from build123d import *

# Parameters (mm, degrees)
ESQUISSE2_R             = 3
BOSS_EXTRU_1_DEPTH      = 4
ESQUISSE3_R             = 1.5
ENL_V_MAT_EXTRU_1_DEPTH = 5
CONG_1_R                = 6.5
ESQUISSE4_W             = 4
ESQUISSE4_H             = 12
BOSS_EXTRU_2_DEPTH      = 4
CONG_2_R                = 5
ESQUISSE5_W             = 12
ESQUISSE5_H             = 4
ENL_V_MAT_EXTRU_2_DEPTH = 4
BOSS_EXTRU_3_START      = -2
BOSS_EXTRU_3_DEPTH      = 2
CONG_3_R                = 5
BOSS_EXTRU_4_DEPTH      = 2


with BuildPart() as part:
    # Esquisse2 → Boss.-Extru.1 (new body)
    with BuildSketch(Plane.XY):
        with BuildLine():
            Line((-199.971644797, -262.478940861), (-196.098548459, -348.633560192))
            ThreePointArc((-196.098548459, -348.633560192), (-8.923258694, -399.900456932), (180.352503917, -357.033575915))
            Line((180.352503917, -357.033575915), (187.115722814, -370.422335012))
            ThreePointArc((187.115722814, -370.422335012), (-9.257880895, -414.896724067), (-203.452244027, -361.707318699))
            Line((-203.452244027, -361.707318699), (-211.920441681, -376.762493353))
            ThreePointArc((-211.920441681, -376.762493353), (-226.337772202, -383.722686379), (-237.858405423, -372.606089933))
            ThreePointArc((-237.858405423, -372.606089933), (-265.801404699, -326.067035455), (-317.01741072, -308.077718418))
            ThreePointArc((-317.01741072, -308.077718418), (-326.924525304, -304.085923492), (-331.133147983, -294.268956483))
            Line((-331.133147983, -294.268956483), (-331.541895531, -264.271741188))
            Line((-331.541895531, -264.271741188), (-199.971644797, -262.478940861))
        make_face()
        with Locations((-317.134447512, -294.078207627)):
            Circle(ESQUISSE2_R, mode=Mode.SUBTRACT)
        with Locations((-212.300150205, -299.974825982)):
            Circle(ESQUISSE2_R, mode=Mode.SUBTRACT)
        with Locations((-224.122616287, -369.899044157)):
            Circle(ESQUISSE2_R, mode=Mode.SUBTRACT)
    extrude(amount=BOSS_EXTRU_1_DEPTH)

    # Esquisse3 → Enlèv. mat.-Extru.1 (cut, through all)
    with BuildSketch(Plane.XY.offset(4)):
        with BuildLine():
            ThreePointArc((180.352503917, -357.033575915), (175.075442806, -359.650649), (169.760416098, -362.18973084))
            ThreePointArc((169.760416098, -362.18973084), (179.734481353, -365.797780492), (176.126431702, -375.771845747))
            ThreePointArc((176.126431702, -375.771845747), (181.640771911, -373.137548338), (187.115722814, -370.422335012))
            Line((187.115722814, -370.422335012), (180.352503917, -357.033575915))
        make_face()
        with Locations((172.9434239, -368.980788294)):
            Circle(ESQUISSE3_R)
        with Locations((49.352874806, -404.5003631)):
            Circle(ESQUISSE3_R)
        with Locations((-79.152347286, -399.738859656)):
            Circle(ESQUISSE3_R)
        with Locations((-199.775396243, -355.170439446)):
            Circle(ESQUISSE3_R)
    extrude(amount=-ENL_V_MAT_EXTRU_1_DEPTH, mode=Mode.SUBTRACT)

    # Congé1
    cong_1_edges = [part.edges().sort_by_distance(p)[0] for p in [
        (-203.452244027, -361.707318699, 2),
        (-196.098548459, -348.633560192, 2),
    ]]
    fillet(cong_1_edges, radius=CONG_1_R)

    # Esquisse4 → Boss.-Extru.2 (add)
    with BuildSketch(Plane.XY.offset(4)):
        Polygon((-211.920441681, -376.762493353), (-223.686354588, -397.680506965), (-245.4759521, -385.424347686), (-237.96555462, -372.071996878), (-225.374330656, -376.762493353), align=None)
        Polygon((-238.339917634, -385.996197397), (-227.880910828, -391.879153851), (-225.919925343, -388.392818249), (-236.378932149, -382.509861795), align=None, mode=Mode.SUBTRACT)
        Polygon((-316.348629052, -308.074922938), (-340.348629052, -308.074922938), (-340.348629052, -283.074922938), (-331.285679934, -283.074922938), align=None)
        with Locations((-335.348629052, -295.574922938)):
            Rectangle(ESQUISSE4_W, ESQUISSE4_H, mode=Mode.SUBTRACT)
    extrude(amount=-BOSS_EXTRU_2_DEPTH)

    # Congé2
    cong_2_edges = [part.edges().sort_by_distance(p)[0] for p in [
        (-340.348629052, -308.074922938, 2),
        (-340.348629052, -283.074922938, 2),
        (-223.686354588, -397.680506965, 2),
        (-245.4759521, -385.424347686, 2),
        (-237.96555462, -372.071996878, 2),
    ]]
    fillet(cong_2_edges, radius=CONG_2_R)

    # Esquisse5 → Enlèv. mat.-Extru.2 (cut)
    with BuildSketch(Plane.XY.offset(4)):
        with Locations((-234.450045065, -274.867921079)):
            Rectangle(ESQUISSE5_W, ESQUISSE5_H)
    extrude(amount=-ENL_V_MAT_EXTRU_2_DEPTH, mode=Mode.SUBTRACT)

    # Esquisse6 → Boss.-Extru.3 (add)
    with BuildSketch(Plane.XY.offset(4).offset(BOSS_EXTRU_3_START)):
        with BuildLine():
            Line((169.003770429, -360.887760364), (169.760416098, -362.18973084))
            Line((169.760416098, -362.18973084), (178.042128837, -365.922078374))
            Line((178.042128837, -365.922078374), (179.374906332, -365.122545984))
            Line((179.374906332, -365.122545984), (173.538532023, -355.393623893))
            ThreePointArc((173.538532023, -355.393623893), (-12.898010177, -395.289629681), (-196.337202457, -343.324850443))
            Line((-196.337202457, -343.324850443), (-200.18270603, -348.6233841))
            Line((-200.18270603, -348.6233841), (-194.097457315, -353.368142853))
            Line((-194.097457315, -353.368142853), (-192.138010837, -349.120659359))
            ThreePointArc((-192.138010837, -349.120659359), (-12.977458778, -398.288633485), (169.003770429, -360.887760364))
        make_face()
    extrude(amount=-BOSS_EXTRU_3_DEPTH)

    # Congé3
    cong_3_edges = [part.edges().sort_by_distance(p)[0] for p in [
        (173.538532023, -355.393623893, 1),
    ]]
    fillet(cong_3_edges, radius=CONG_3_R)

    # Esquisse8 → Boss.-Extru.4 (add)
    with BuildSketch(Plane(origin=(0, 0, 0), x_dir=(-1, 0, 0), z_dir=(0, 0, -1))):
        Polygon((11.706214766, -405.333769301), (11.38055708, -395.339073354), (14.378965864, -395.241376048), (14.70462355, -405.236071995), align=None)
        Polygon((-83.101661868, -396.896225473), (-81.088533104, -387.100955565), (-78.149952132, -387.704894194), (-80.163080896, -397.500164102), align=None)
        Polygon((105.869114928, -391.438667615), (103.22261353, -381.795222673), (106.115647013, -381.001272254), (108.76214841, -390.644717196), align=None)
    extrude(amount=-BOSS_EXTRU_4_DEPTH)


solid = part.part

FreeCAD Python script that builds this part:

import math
import FreeCAD as App
import Part
import Sketcher
Q = App.Units.Quantity


def edges_at(feature, points):
    """Names of the edges that pass closest to the given points."""
    edges = feature.Shape.Edges
    near = lambda p: min(range(len(edges)), key=lambda i: edges[i].distToShape(Part.Vertex(*p))[0])
    return sorted({f"Edge{near(p) + 1}" for p in points})


def add_polygon(sketch, points):
    """Adds a closed chain of lines whose ends are joined by coincident constraints."""
    first, n = sketch.GeometryCount, len(points)
    for a, b in zip(points, points[1:] + points[:1]):
        sketch.addGeometry(Part.LineSegment(App.Vector(*a, 0), App.Vector(*b, 0)), False)
    for i in range(n):
        sketch.addConstraint(Sketcher.Constraint("Coincident", first + i, 2, first + (i + 1) % n, 1))

doc = App.newDocument("Part")
params = doc.addObject("Spreadsheet::Sheet", "Params")
for row, (alias, value) in enumerate([
    ("sketch1_diameter", "6 mm"),
    ("sketch1_radius", "14 mm"),
    ("sketch1_radius2", "80 mm"),
    ("sketch1_radius3", "415 mm"),
    ("sketch1_radius4", "400 mm"),
    ("pad1_length", "4 mm"),
    ("sketch2_diameter", "3 mm"),
    ("sketch2_radius", "399.999999 mm"),
    ("sketch2_radius2", "414.999999 mm"),
    ("fillet_radius", "6.5 mm"),
    ("sketch3_width", "24 mm"),
    ("sketch3_width2", "4 mm"),
    ("sketch3_height", "25 mm"),
    ("sketch3_height2", "12 mm"),
    ("sketch3_length", "24 mm"),
    ("pad2_length", "4 mm"),
    ("fillet2_radius", "5 mm"),
    ("sketch4_width", "12 mm"),
    ("sketch4_height", "4 mm"),
    ("pocket2_length", "4 mm"),
    ("sketch5_radius", "395.5 mm"),
    ("sketch5_radius2", "398.5 mm"),
    ("pad3_length", "2 mm"),
    ("fillet3_radius", "5 mm"),
    ("sketch6_length", "10 mm"),
    ("sketch6_length2", "3 mm"),
    ("pad4_length", "2 mm"),
], start=1):
    params.set(f"A{row}", alias)
    params.set(f"B{row}", "=" + value)
    params.setAlias(f"B{row}", alias)

body = doc.addObject("PartDesign::Body", "Body")

# Sketch on XY plane
sketch1 = body.newObject("Sketcher::SketchObject", "Sketch")
sketch1.AttachmentSupport = (doc.getObject("XY_Plane"), [""])
sketch1.MapMode = "FlatFace"
sketch1.addGeometry([
    Part.LineSegment(App.Vector(-196.1, -348.6, 0), App.Vector(-200, -262.5, 0)),  # 0
    Part.LineSegment(App.Vector(-200, -262.5, 0), App.Vector(-331.5, -264.3, 0)),  # 1
    Part.LineSegment(App.Vector(-331.5, -264.3, 0), App.Vector(-331.1, -294.3, 0)),  # 2
    Part.ArcOfCircle(Part.Circle(App.Vector(-317.1, -294.1, 0), App.Vector(0, 0, 1), 14), math.radians(-179), math.radians(-90)),  # 3
    Part.ArcOfCircle(Part.Circle(App.Vector(-316.3, -388.1, 0), App.Vector(0, 0, 1), 80), math.radians(11), math.radians(90)),  # 4
    Part.ArcOfCircle(Part.Circle(App.Vector(-224.1, -369.9, 0), App.Vector(0, 0, 1), 14), math.radians(-169), math.radians(-29)),  # 5
    Part.LineSegment(App.Vector(-211.9, -376.8, 0), App.Vector(-203.5, -361.7, 0)),  # 6
    Part.ArcOfCircle(Part.Circle(App.Vector(0, 0, 0), App.Vector(0, 0, 1), 415), math.radians(-119), math.radians(-63)),  # 7
    Part.LineSegment(App.Vector(187.1, -370.4, 0), App.Vector(180.4, -357, 0)),  # 8
    Part.ArcOfCircle(Part.Circle(App.Vector(0, 0, 0), App.Vector(0, 0, 1), 400), math.radians(-119), math.radians(-63)),  # 9
    Part.Circle(App.Vector(-224.1, -369.9, 0), App.Vector(0, 0, 1), 3),  # 10
    Part.Circle(App.Vector(-212.3, -300, 0), App.Vector(0, 0, 1), 3),  # 11
    Part.Circle(App.Vector(-317.1, -294.1, 0), App.Vector(0, 0, 1), 3),  # 12
], False)
sketch1.addConstraint([
    Sketcher.Constraint("Coincident", 0, 2, 1, 1),
    Sketcher.Constraint("Coincident", 1, 2, 2, 1),
    Sketcher.Constraint("Tangent", 2, 2, 3, 1),
    Sketcher.Constraint("Tangent", 3, 2, 4, 2),
    Sketcher.Constraint("Tangent", 4, 1, 5, 1),
    Sketcher.Constraint("Tangent", 5, 2, 6, 1),
    Sketcher.Constraint("Coincident", 6, 2, 7, 1),
    Sketcher.Constraint("Coincident", 7, 2, 8, 1),
    Sketcher.Constraint("Coincident", 8, 2, 9, 2),
    Sketcher.Constraint("Coincident", 9, 1, 0, 1),
    Sketcher.Constraint("Coincident", 7, 3, -1, 1),
    Sketcher.Constraint("Coincident", 9, 3, -1, 1),
    Sketcher.Constraint("Coincident", 10, 3, 5, 3),
    Sketcher.Constraint("Coincident", 12, 3, 3, 3),
    Sketcher.Constraint("Equal", 3, 5),
    Sketcher.Constraint("Equal", 10, 11),
    Sketcher.Constraint("Equal", 11, 12),
    Sketcher.Constraint("Perpendicular", 1, 2),
    Sketcher.Constraint("Diameter", 10, Q("6 mm")),
    Sketcher.Constraint("Radius", 3, Q("14 mm")),
    Sketcher.Constraint("Radius", 4, Q("80 mm")),
    Sketcher.Constraint("Radius", 7, Q("415 mm")),
    Sketcher.Constraint("Radius", 9, Q("400 mm")),
    Sketcher.Constraint("Distance", 2, Q("30 mm")),
    Sketcher.Constraint("DistanceY", 1, 2, 0, 2, Q("1.7928 mm")),
    Sketcher.Constraint("Distance", 6, Q("17.273351 mm")),
    Sketcher.Constraint("DistanceX", 4, 3, -1, 1, Q("316.348629 mm")),
    Sketcher.Constraint("DistanceX", 11, 3, -1, 1, Q("212.30015 mm")),
    Sketcher.Constraint("DistanceY", 0, 2, -1, 1, Q("262.478941 mm")),
    Sketcher.Constraint("DistanceX", 3, 2, -1, 1, Q("317.017411 mm")),
    Sketcher.Constraint("DistanceY", 4, 1, -1, 1, Q("372.60609 mm")),
    Sketcher.Constraint("DistanceX", 9, 1, -1, 1, Q("196.098548 mm")),
    Sketcher.Constraint("DistanceY", 10, 3, 11, 3, Q("69.924218 mm")),
    Sketcher.Constraint("DistanceX", 10, 3, 0, 2, Q("24.150971 mm")),
    Sketcher.Constraint("DistanceY", 5, 2, 7, 2, Q("6.340158 mm")),
    Sketcher.Constraint("DistanceX", 8, 2, 7, 2, Q("6.763219 mm")),
])
sketch1.setExpression("Constraints[18]", "Params.sketch1_diameter")
sketch1.setExpression("Constraints[19]", "Params.sketch1_radius")
sketch1.setExpression("Constraints[20]", "Params.sketch1_radius2")
sketch1.setExpression("Constraints[21]", "Params.sketch1_radius3")
sketch1.setExpression("Constraints[22]", "Params.sketch1_radius4")
pad1 = body.newObject("PartDesign::Pad", "Pad")
pad1.Profile = sketch1
pad1.setExpression("Length", "Params.pad1_length")

# Sketch on XY plane
sketch2 = body.newObject("Sketcher::SketchObject", "Sketch001")
sketch2.AttachmentSupport = (doc.getObject("XY_Plane"), [""])
sketch2.MapMode = "FlatFace"
sketch2.AttachmentOffset = App.Placement(App.Vector(0, 0, 4), App.Rotation())
sketch2.addGeometry([
    Part.ArcOfCircle(Part.Circle(App.Vector(0, 0, 0), App.Vector(0, 0, 1), 400), math.radians(-64.89), math.radians(-63.2)),  # 0
    Part.ArcOfCircle(Part.Circle(App.Vector(172.9, -369, 0), App.Vector(0, 0, 1), 7.5), math.radians(-65), math.radians(115)),  # 1
    Part.ArcOfCircle(Part.Circle(App.Vector(0, 0, 0), App.Vector(0, 0, 1), 415), math.radians(-64.89), math.radians(-63.2)),  # 2
    Part.LineSegment(App.Vector(187.1, -370.4, 0), App.Vector(180.4, -357, 0)),  # 3
    Part.Circle(App.Vector(172.9, -369, 0), App.Vector(0, 0, 1), 1.5),  # 4
    Part.Circle(App.Vector(49.4, -404.5, 0), App.Vector(0, 0, 1), 1.5),  # 5
    Part.Circle(App.Vector(-79.2, -399.7, 0), App.Vector(0, 0, 1), 1.5),  # 6
    Part.Circle(App.Vector(-199.8, -355.2, 0), App.Vector(0, 0, 1), 1.5),  # 7
], False)
sketch2.addConstraint([
    Sketcher.Constraint("Tangent", 0, 1, 1, 2),
    Sketcher.Constraint("Tangent", 1, 1, 2, 1),
    Sketcher.Constraint("Coincident", 2, 2, 3, 1),
    Sketcher.Constraint("Coincident", 3, 2, 0, 2),
    Sketcher.Constraint("Coincident", 0, 3, -1, 1),
    Sketcher.Constraint("Coincident", 2, 3, -1, 1),
    Sketcher.Constraint("Coincident", 4, 3, 1, 3),
    Sketcher.Constraint("Equal", 4, 5),
    Sketcher.Constraint("Equal", 5, 6),
    Sketcher.Constraint("Equal", 6, 7),
    Sketcher.Constraint("Diameter", 4, Q("3 mm")),
    Sketcher.Constraint("Radius", 0, Q("399.999999 mm")),
    Sketcher.Constraint("Radius", 2, Q("414.999999 mm")),
    Sketcher.Constraint("DistanceX", 4, 3, 2, 2, Q("14.172299 mm")),
    Sketcher.Constraint("DistanceY", 1, 3, -1, 1, Q("368.980788 mm")),
    Sketcher.Constraint("DistanceY", 6, 3, -1, 1, Q("399.73886 mm")),
    Sketcher.Constraint("DistanceY", 7, 3, -1, 1, Q("355.170439 mm")),
    Sketcher.Constraint("DistanceX", 5, 3, 1, 3, Q("123.590549 mm")),
    Sketcher.Constraint("DistanceX", 6, 3, 1, 3, Q("252.095771 mm")),
    Sketcher.Constraint("DistanceX", 7, 3, 6, 3, Q("120.623049 mm")),
    Sketcher.Constraint("DistanceY", 5, 3, 2, 2, Q("34.078028 mm")),
    Sketcher.Constraint("DistanceX", 4, 3, 3, 2, Q("7.40908 mm")),
])
sketch2.setExpression("Constraints[10]", "Params.sketch2_diameter")
sketch2.setExpression("Constraints[11]", "Params.sketch2_radius")
sketch2.setExpression("Constraints[12]", "Params.sketch2_radius2")
pocket1 = body.newObject("PartDesign::Pocket", "Pocket")
pocket1.Profile = sketch2
pocket1.Type = "ThroughAll"
doc.recompute()

fillet = body.newObject("PartDesign::Fillet", "Fillet")
fillet.Base = (pocket1, edges_at(pocket1, [(-203.452, -361.707, 2), (-196.099, -348.634, 2)]))
fillet.setExpression("Radius", "Params.fillet_radius")

# Sketch on XY plane
sketch3 = body.newObject("Sketcher::SketchObject", "Sketch002")
sketch3.AttachmentSupport = (doc.getObject("XY_Plane"), [""])
sketch3.MapMode = "FlatFace"
sketch3.AttachmentOffset = App.Placement(App.Vector(0, 0, 4), App.Rotation())
add_polygon(sketch3, [(-223.7, -397.7), (-211.9, -376.8), (-225.4, -376.8), (-238, -372.1), (-245.5, -385.4)])  # lines 0-4
add_polygon(sketch3, [(-238.3, -386), (-236.4, -382.5), (-225.9, -388.4), (-227.9, -391.9)])  # lines 5-8
add_polygon(sketch3, [(-340.3, -308.1), (-316.3, -308.1), (-331.3, -283.1), (-340.3, -283.1)])  # lines 9-12
add_polygon(sketch3, [(-337.3, -301.6), (-337.3, -289.6), (-333.3, -289.6), (-333.3, -301.6)])  # lines 13-16
sketch3.addConstraint([
    Sketcher.Constraint("Horizontal", 1),
    Sketcher.Constraint("Horizontal", 9),
    Sketcher.Constraint("Horizontal", 11),
    Sketcher.Constraint("Vertical", 12),
    Sketcher.Constraint("Vertical", 13),
    Sketcher.Constraint("Horizontal", 14),
    Sketcher.Constraint("Vertical", 15),
    Sketcher.Constraint("Horizontal", 16),
    Sketcher.Constraint("Parallel", 0, 3),
    Sketcher.Constraint("Perpendicular", 3, 4),
    Sketcher.Constraint("Perpendicular", 4, 5),
    Sketcher.Constraint("Perpendicular", 5, 6),
    Sketcher.Constraint("Perpendicular", 6, 7),
    Sketcher.Constraint("Perpendicular", 7, 8),
    Sketcher.Constraint("DistanceX", 9, 1, 9, 2, Q("24 mm")),
    Sketcher.Constraint("DistanceX", 14, 1, 14, 2, Q("4 mm")),
    Sketcher.Constraint("DistanceY", 12, 2, 12, 1, Q("25 mm")),
    Sketcher.Constraint("DistanceY", 13, 1, 13, 2, Q("12 mm")),
    Sketcher.Constraint("Distance", 0, Q("24 mm")),
    Sketcher.Constraint("Distance", 4, Q("25 mm")),
    Sketcher.Constraint("Distance", 5, Q("4 mm")),
    Sketcher.Constraint("Distance", 6, Q("12 mm")),
    Sketcher.Constraint("DistanceX", 11, 2, 13, 2, Q("3 mm")),
    Sketcher.Constraint("DistanceY", 13, 2, 11, 2, Q("6.5 mm")),
    Sketcher.Constraint("DistanceX", 1, 2, 1, 1, Q("13.453889 mm")),
    Sketcher.Constraint("DistanceX", 11, 2, 11, 1, Q("9.062949 mm")),
    Sketcher.Constraint("DistanceX", 2, 2, 4, 2, Q("14.2792 mm")),
    Sketcher.Constraint("DistanceX", 5, 2, 1, 2, Q("11.004601 mm")),
    Sketcher.Constraint("DistanceY", 8, 2, 2, 2, Q("13.924201 mm")),
    Sketcher.Constraint("DistanceX", 9, 2, 1, 2, Q("90.974298 mm")),
    Sketcher.Constraint("Distance", 3, Q("15.319639 mm")),
    Sketcher.Constraint("DistanceX", 0, 2, -1, 1, Q("211.920442 mm")),
    Sketcher.Constraint("DistanceY", 5, 2, -1, 1, Q("382.509862 mm")),
    Sketcher.Constraint("DistanceY", 5, 2, 9, 2, Q("74.434939 mm")),
])
sketch3.setExpression("Constraints[31]", "Params.sketch3_width")
sketch3.setExpression("Constraints[32]", "Params.sketch3_width2")
sketch3.setExpression("Constraints[33]", "Params.sketch3_height")
sketch3.setExpression("Constraints[34]", "Params.sketch3_height2")
sketch3.setExpression("Constraints[35]", "Params.sketch3_length")
pad2 = body.newObject("PartDesign::Pad", "Pad001")
pad2.Profile = sketch3
pad2.setExpression("Length", "Params.pad2_length")
pad2.Reversed = True
doc.recompute()

fillet2 = body.newObject("PartDesign::Fillet", "Fillet001")
fillet2.Base = (pad2, edges_at(pad2, [
    (-340.349, -308.075, 2),
    (-340.349, -283.075, 2),
    (-223.686, -397.681, 2),
    (-245.476, -385.424, 2),
    (-237.966, -372.072, 2),
]))
fillet2.setExpression("Radius", "Params.fillet2_radius")

# Sketch on XY plane
sketch4 = body.newObject("Sketcher::SketchObject", "Sketch003")
sketch4.AttachmentSupport = (doc.getObject("XY_Plane"), [""])
sketch4.MapMode = "FlatFace"
sketch4.AttachmentOffset = App.Placement(App.Vector(0, 0, 4), App.Rotation())
add_polygon(sketch4, [(-240.5, -272.9), (-240.5, -276.9), (-228.5, -276.9), (-228.5, -272.9)])  # lines 0-3
sketch4.addConstraint([
    Sketcher.Constraint("Vertical", 0),
    Sketcher.Constraint("Horizontal", 1),
    Sketcher.Constraint("Vertical", 2),
    Sketcher.Constraint("Horizontal", 3),
    Sketcher.Constraint("DistanceX", 1, 1, 1, 2, Q("12 mm")),
    Sketcher.Constraint("DistanceY", 0, 2, 0, 1, Q("4 mm")),
    Sketcher.Constraint("DistanceY", 0, 2, -1, 1, Q("276.867921 mm")),
    Sketcher.Constraint("DistanceX", 0, 2, -1, 1, Q("240.450045 mm")),
])
sketch4.setExpression("Constraints[8]", "Params.sketch4_width")
sketch4.setExpression("Constraints[9]", "Params.sketch4_height")
pocket2 = body.newObject("PartDesign::Pocket", "Pocket001")
pocket2.Profile = sketch4
pocket2.setExpression("Length", "Params.pocket2_length")

# Sketch on XY plane
sketch5 = body.newObject("Sketcher::SketchObject", "Sketch004")
sketch5.AttachmentSupport = (doc.getObject("XY_Plane"), [""])
sketch5.MapMode = "FlatFace"
sketch5.AttachmentOffset = App.Placement(App.Vector(0, 0, 2), App.Rotation())
sketch5.addGeometry([
    Part.LineSegment(App.Vector(169, -360.9, 0), App.Vector(169.8, -362.2, 0)),  # 0
    Part.LineSegment(App.Vector(169.8, -362.2, 0), App.Vector(178, -365.9, 0)),  # 1
    Part.LineSegment(App.Vector(178, -365.9, 0), App.Vector(179.4, -365.1, 0)),  # 2
    Part.LineSegment(App.Vector(179.4, -365.1, 0), App.Vector(173.5, -355.4, 0)),  # 3
    Part.ArcOfCircle(Part.Circle(App.Vector(0, 0, 0), App.Vector(0, 0, 1), 395.5), math.radians(-120), math.radians(-64)),  # 4
    Part.LineSegment(App.Vector(-196.3, -343.3, 0), App.Vector(-200.2, -348.6, 0)),  # 5
    Part.LineSegment(App.Vector(-200.2, -348.6, 0), App.Vector(-194.1, -353.4, 0)),  # 6
    Part.LineSegment(App.Vector(-194.1, -353.4, 0), App.Vector(-192.1, -349.1, 0)),  # 7
    Part.ArcOfCircle(Part.Circle(App.Vector(0, 0, 0), App.Vector(0, 0, 1), 398.5), math.radians(-119), math.radians(-65)),  # 8
], False)
sketch5.addConstraint([
    Sketcher.Constraint("Coincident", 0, 2, 1, 1),
    Sketcher.Constraint("Coincident", 1, 2, 2, 1),
    Sketcher.Constraint("Coincident", 2, 2, 3, 1),
    Sketcher.Constraint("Coincident", 3, 2, 4, 2),
    Sketcher.Constraint("Coincident", 4, 1, 5, 1),
    Sketcher.Constraint("Coincident", 5, 2, 6, 1),
    Sketcher.Constraint("Coincident", 6, 2, 7, 1),
    Sketcher.Constraint("Coincident", 7, 2, 8, 1),
    Sketcher.Constraint("Coincident", 8, 2, 0, 1),
    Sketcher.Constraint("Coincident", 4, 3, -1, 1),
    Sketcher.Constraint("Coincident", 8, 3, -1, 1),
    Sketcher.Constraint("Perpendicular", 2, 3),
    Sketcher.Constraint("Radius", 4, Q("395.5 mm")),
    Sketcher.Constraint("Radius", 8, Q("398.5 mm")),
    Sketcher.Constraint("DistanceY", 8, 2, 7, 2, Q("11.767101 mm")),
    Sketcher.Constraint("Distance", 0, Q("1.505868 mm")),
    Sketcher.Constraint("Distance", 3, Q("11.345272 mm")),
    Sketcher.Constraint("Distance", 6, Q("7.71641 mm")),
    Sketcher.Constraint("DistanceY", 0, 2, -1, 1, Q("362.189731 mm")),
    Sketcher.Constraint("DistanceX", -1, 1, 1, 2, Q("178.042129 mm")),
    Sketcher.Constraint("DistanceY", 1, 2, -1, 1, Q("365.922078 mm")),
    Sketcher.Constraint("DistanceY", 4, 1, -1, 1, Q("343.32485 mm")),
    Sketcher.Constraint("DistanceX", 7, 2, -1, 1, Q("192.138011 mm")),
    Sketcher.Constraint("DistanceX", 0, 2, 2, 2, Q("9.61449 mm")),
    Sketcher.Constraint("DistanceX", 5, 2, 3, 2, Q("373.721238 mm")),
    Sketcher.Constraint("DistanceY", 3, 2, 5, 2, Q("6.77024 mm")),
    Sketcher.Constraint("DistanceX", 5, 2, 6, 2, Q("6.085249 mm")),
])
sketch5.setExpression("Constraints[12]", "Params.sketch5_radius")
sketch5.setExpression("Constraints[13]", "Params.sketch5_radius2")
pad3 = body.newObject("PartDesign::Pad", "Pad002")
pad3.Profile = sketch5
pad3.setExpression("Length", "Params.pad3_length")
pad3.Reversed = True
doc.recompute()

fillet3 = body.newObject("PartDesign::Fillet", "Fillet002")
fillet3.Base = (pad3, edges_at(pad3, [(173.539, -355.394, 1)]))
fillet3.setExpression("Radius", "Params.fillet3_radius")

# Sketch on XY plane
sketch6 = body.newObject("Sketcher::SketchObject", "Sketch005")
sketch6.AttachmentSupport = (doc.getObject("XY_Plane"), [""])
sketch6.MapMode = "FlatFace"
add_polygon(sketch6, [(-11.4, -395.3), (-11.7, -405.3), (-14.7, -405.2), (-14.4, -395.2)])  # lines 0-3
add_polygon(sketch6, [(81.1, -387.1), (83.1, -396.9), (80.2, -397.5), (78.1, -387.7)])  # lines 4-7
add_polygon(sketch6, [(-103.2, -381.8), (-105.9, -391.4), (-108.8, -390.6), (-106.1, -381)])  # lines 8-11
sketch6.addConstraint([
    Sketcher.Constraint("Perpendicular", 0, 1),
    Sketcher.Constraint("Perpendicular", 1, 2),
    Sketcher.Constraint("Perpendicular", 2, 3),
    Sketcher.Constraint("Perpendicular", 4, 5),
    Sketcher.Constraint("Perpendicular", 5, 6),
    Sketcher.Constraint("Perpendicular", 6, 7),
    Sketcher.Constraint("Perpendicular", 8, 9),
    Sketcher.Constraint("Perpendicular", 9, 10),
    Sketcher.Constraint("Perpendicular", 10, 11),
    Sketcher.Constraint("Equal", 2, 4),
    Sketcher.Constraint("Equal", 3, 5),
    Sketcher.Constraint("Equal", 6, 8),
    Sketcher.Constraint("Equal", 7, 9),
    Sketcher.Constraint("Distance", 0, Q("10 mm")),
    Sketcher.Constraint("Distance", 1, Q("3 mm")),
    Sketcher.Constraint("DistanceY", 1, 2, 3, 2, Q("9.896999 mm")),
    Sketcher.Constraint("DistanceX", 8, 2, 0, 2, Q("94.1629 mm")),
    Sketcher.Constraint("DistanceY", 0, 2, 8, 2, Q("13.895102 mm")),
    Sketcher.Constraint("DistanceX", 9, 2, 10, 2, Q("2.646501 mm")),
    Sketcher.Constraint("DistanceY", 0, 2, -1, 1, Q("405.333769 mm")),
    Sketcher.Constraint("DistanceX", -1, 1, 4, 2, Q("83.101662 mm")),
    Sketcher.Constraint("DistanceX", -1, 1, 5, 2, Q("80.163081 mm")),
    Sketcher.Constraint("DistanceX", 9, 2, -1, 1, Q("108.762148 mm")),
    Sketcher.Constraint("DistanceY", 4, 2, 2, 2, Q("1.654849 mm")),
])
sketch6.setExpression("Constraints[25]", "Params.sketch6_length")
sketch6.setExpression("Constraints[26]", "Params.sketch6_length2")
pad4 = body.newObject("PartDesign::Pad", "Pad003")
pad4.Profile = sketch6
pad4.setExpression("Length", "Params.pad4_length")

doc.recompute()
